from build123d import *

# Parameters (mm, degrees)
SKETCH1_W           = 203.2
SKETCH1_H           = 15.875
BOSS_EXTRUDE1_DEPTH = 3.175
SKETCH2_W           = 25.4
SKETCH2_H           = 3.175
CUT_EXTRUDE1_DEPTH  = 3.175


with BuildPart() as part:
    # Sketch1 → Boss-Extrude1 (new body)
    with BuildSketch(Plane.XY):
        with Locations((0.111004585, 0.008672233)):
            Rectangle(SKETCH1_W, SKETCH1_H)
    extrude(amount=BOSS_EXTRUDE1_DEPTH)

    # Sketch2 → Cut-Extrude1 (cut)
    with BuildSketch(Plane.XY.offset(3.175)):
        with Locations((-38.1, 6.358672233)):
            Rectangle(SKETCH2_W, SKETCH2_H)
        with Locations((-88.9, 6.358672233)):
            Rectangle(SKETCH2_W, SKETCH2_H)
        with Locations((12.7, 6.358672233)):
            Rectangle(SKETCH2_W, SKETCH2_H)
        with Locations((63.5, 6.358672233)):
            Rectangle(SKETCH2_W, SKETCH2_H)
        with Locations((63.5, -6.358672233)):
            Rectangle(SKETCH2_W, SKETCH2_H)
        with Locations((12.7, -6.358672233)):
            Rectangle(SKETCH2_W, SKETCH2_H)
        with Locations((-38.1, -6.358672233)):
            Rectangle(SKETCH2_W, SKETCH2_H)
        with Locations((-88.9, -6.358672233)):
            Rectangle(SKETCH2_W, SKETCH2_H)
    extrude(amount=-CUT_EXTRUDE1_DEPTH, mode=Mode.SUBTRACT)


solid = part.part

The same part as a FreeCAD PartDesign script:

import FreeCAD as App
import Part
import Sketcher

V = App.Vector
Q = App.Units.Quantity

doc = App.newDocument("Part")
body = doc.addObject("PartDesign::Body", "Body")

sketch1 = body.newObject("Sketcher::SketchObject", "Sketch")
sketch1.AttachmentSupport = (doc.getObject("XY_Plane"), [""])
sketch1.MapMode = "FlatFace"
sketch1.addGeometry([
    Part.LineSegment(V(-101, 8, 0), V(-101, -8, 0)),
    Part.LineSegment(V(-101, -8, 0), V(102, -8, 0)),
    Part.LineSegment(V(102, -8, 0), V(102, 8, 0)),
    Part.LineSegment(V(102, 8, 0), V(-101, 8, 0)),
], False)
sketch1.addConstraint([
    Sketcher.Constraint("Coincident", 0, 2, 1, 1),
    Sketcher.Constraint("Coincident", 1, 2, 2, 1),
    Sketcher.Constraint("Coincident", 2, 2, 3, 1),
    Sketcher.Constraint("Coincident", 3, 2, 0, 1),
    Sketcher.Constraint("Vertical", 0),
    Sketcher.Constraint("Horizontal", 1),
    Sketcher.Constraint("Vertical", 2),
    Sketcher.Constraint("Horizontal", 3),
    Sketcher.Constraint("DistanceX", 1, 1, 1, 2, Q("8 in")),
    Sketcher.Constraint("DistanceY", 0, 2, 0, 1, Q("0.625 in")),
    Sketcher.Constraint("DistanceX", 0, 2, -1, 1, Q("101.488995 mm")),
    Sketcher.Constraint("DistanceY", 0, 2, -1, 1, Q("7.928828 mm")),
])
pad1 = body.newObject("PartDesign::Pad", "Pad")
pad1.Profile = sketch1
pad1.Length = Q("0.125 in")

sketch2 = body.newObject("Sketcher::SketchObject", "Sketch001")
sketch2.AttachmentSupport = (doc.getObject("XY_Plane"), [""])
sketch2.MapMode = "FlatFace"
sketch2.AttachmentOffset = App.Placement(V(0, 0, 0.125 * 25.4), App.Rotation())
sketch2.addGeometry([
    Part.LineSegment(V(-50.8, 7.9, 0), V(-50.8, 4.8, 0)),
    Part.LineSegment(V(-50.8, 4.8, 0), V(-25.4, 4.8, 0)),
    Part.LineSegment(V(-25.4, 4.8, 0), V(-25.4, 7.9, 0)),
    Part.LineSegment(V(-25.4, 7.9, 0), V(-50.8, 7.9, 0)),
    Part.LineSegment(V(-101.6, 7.9, 0), V(-101.6, 4.8, 0)),
    Part.LineSegment(V(-101.6, 4.8, 0), V(-76.2, 4.8, 0)),
    Part.LineSegment(V(-76.2, 4.8, 0), V(-76.2, 7.9, 0)),
    Part.LineSegment(V(-76.2, 7.9, 0), V(-101.6, 7.9, 0)),
    Part.LineSegment(V(0, 7.9, 0), V(0, 4.8, 0)),
    Part.LineSegment(V(0, 4.8, 0), V(25.4, 4.8, 0)),
    Part.LineSegment(V(25.4, 4.8, 0), V(25.4, 7.9, 0)),
    Part.LineSegment(V(25.4, 7.9, 0), V(0, 7.9, 0)),
    Part.LineSegment(V(50.8, 7.9, 0), V(50.8, 4.8, 0)),
    Part.LineSegment(V(50.8, 4.8, 0), V(76.2, 4.8, 0)),
    Part.LineSegment(V(76.2, 4.8, 0), V(76.2, 7.9, 0)),
    Part.LineSegment(V(76.2, 7.9, 0), V(50.8, 7.9, 0)),
    Part.LineSegment(V(50.8, -4.8, 0), V(50.8, -7.9, 0)),
    Part.LineSegment(V(50.8, -7.9, 0), V(76.2, -7.9, 0)),
    Part.LineSegment(V(76.2, -7.9, 0), V(76.2, -4.8, 0)),
    Part.LineSegment(V(76.2, -4.8, 0), V(50.8, -4.8, 0)),
    Part.LineSegment(V(0, -4.8, 0), V(0, -7.9, 0)),
    Part.LineSegment(V(0, -7.9, 0), V(25.4, -7.9, 0)),
    Part.LineSegment(V(25.4, -7.9, 0), V(25.4, -4.8, 0)),
    Part.LineSegment(V(25.4, -4.8, 0), V(0, -4.8, 0)),
    Part.LineSegment(V(-50.8, -4.8, 0), V(-50.8, -7.9, 0)),
    Part.LineSegment(V(-50.8, -7.9, 0), V(-25.4, -7.9, 0)),
    Part.LineSegment(V(-25.4, -7.9, 0), V(-25.4, -4.8, 0)),
    Part.LineSegment(V(-25.4, -4.8, 0), V(-50.8, -4.8, 0)),
    Part.LineSegment(V(-101.6, -4.8, 0), V(-101.6, -7.9, 0)),
    Part.LineSegment(V(-101.6, -7.9, 0), V(-76.2, -7.9, 0)),
    Part.LineSegment(V(-76.2, -7.9, 0), V(-76.2, -4.8, 0)),
    Part.LineSegment(V(-76.2, -4.8, 0), V(-101.6, -4.8, 0)),
], False)
sketch2.addConstraint([
    Sketcher.Constraint("Coincident", 0, 2, 1, 1),
    Sketcher.Constraint("Coincident", 1, 2, 2, 1),
    Sketcher.Constraint("Coincident", 2, 2, 3, 1),
    Sketcher.Constraint("Coincident", 3, 2, 0, 1),
    Sketcher.Constraint("Coincident", 4, 2, 5, 1),
    Sketcher.Constraint("Coincident", 5, 2, 6, 1),
    Sketcher.Constraint("Coincident", 6, 2, 7, 1),
    Sketcher.Constraint("Coincident", 7, 2, 4, 1),
    Sketcher.Constraint("Coincident", 8, 2, 9, 1),
    Sketcher.Constraint("Coincident", 9, 2, 10, 1),
    Sketcher.Constraint("Coincident", 10, 2, 11, 1),
    Sketcher.Constraint("Coincident", 11, 2, 8, 1),
    Sketcher.Constraint("Coincident", 12, 2, 13, 1),
    Sketcher.Constraint("Coincident", 13, 2, 14, 1),
    Sketcher.Constraint("Coincident", 14, 2, 15, 1),
    Sketcher.Constraint("Coincident", 15, 2, 12, 1),
    Sketcher.Constraint("Coincident", 16, 2, 17, 1),
    Sketcher.Constraint("Coincident", 17, 2, 18, 1),
    Sketcher.Constraint("Coincident", 18, 2, 19, 1),
    Sketcher.Constraint("Coincident", 19, 2, 16, 1),
    Sketcher.Constraint("Coincident", 20, 2, 21, 1),
    Sketcher.Constraint("Coincident", 21, 2, 22, 1),
    Sketcher.Constraint("Coincident", 22, 2, 23, 1),
    Sketcher.Constraint("Coincident", 23, 2, 20, 1),
    Sketcher.Constraint("Coincident", 24, 2, 25, 1),
    Sketcher.Constraint("Coincident", 25, 2, 26, 1),
    Sketcher.Constraint("Coincident", 26, 2, 27, 1),
    Sketcher.Constraint("Coincident", 27, 2, 24, 1),
    Sketcher.Constraint("Coincident", 28, 2, 29, 1),
    Sketcher.Constraint("Coincident", 29, 2, 30, 1),
    Sketcher.Constraint("Coincident", 30, 2, 31, 1),
    Sketcher.Constraint("Coincident", 31, 2, 28, 1),
    Sketcher.Constraint("Vertical", 0),
    Sketcher.Constraint("Horizontal", 1),
    Sketcher.Constraint("Vertical", 2),
    Sketcher.Constraint("Horizontal", 3),
    Sketcher.Constraint("Vertical", 4),
    Sketcher.Constraint("Horizontal", 5),
    Sketcher.Constraint("Vertical", 6),
    Sketcher.Constraint("Horizontal", 7),
    Sketcher.Constraint("Vertical", 8),
    Sketcher.Constraint("Horizontal", 9),
    Sketcher.Constraint("Vertical", 10),
    Sketcher.Constraint("Horizontal", 11),
    Sketcher.Constraint("Vertical", 12),
    Sketcher.Constraint("Horizontal", 13),
    Sketcher.Constraint("Vertical", 14),
    Sketcher.Constraint("Horizontal", 15),
    Sketcher.Constraint("Vertical", 16),
    Sketcher.Constraint("Horizontal", 17),
    Sketcher.Constraint("Vertical", 18),
    Sketcher.Constraint("Horizontal", 19),
    Sketcher.Constraint("Vertical", 20),
    Sketcher.Constraint("Horizontal", 21),
    Sketcher.Constraint("Vertical", 22),
    Sketcher.Constraint("Horizontal", 23),
    Sketcher.Constraint("Vertical", 24),
    Sketcher.Constraint("Horizontal", 25),
    Sketcher.Constraint("Vertical", 26),
    Sketcher.Constraint("Horizontal", 27),
    Sketcher.Constraint("Vertical", 28),
    Sketcher.Constraint("Horizontal", 29),
    Sketcher.Constraint("Vertical", 30),
    Sketcher.Constraint("Horizontal", 31),
    Sketcher.Constraint("Symmetric", 3, 2, 16, 2, -1, 1),
    Sketcher.Constraint("Symmetric", 6, 2, 17, 2, -1, 1),
    Sketcher.Constraint("Symmetric", 11, 2, 20, 2, -1, 1),
    Sketcher.Constraint("Symmetric", 2, 2, 21, 2, -1, 1),
    Sketcher.Constraint("Symmetric", 15, 2, 24, 2, -1, 1),
    Sketcher.Constraint("Symmetric", 10, 2, 25, 2, -1, 1),
    Sketcher.Constraint("Symmetric", 14, 2, 29, 2, -1, 1),
    Sketcher.Constraint("Symmetric", 1, 2, 9, 2, -2),
    Sketcher.Constraint("Symmetric", 0, 2, 12, 2, -2),
    Sketcher.Constraint("Symmetric", 5, 2, 13, 2, -2),
    Sketcher.Constraint("Symmetric", 8, 2, 23, 2, -1),
    Sketcher.Constraint("Symmetric", 4, 2, 31, 2, -1),
    Sketcher.Constraint("Horizontal", 19, 2, 22, 2),
    Sketcher.Constraint("Horizontal", 23, 2, 26, 2),
    Sketcher.Constraint("Equal", 3, 5),
    Sketcher.Constraint("Equal", 7, 9),
    Sketcher.Constraint("Equal", 11, 13),
    Sketcher.Constraint("DistanceX", 1, 1, 1, 2, Q("1 in")),
    Sketcher.Constraint("DistanceY", 0, 2, 0, 1, Q("0.125 in")),
    Sketcher.Constraint("DistanceY", -1, 1, 0, 2, Q("4.771172 mm")),
])
pocket1 = body.newObject("PartDesign::Pocket", "Pocket")
pocket1.Profile = sketch2
pocket1.Length = Q("0.125 in")

doc.recompute()
